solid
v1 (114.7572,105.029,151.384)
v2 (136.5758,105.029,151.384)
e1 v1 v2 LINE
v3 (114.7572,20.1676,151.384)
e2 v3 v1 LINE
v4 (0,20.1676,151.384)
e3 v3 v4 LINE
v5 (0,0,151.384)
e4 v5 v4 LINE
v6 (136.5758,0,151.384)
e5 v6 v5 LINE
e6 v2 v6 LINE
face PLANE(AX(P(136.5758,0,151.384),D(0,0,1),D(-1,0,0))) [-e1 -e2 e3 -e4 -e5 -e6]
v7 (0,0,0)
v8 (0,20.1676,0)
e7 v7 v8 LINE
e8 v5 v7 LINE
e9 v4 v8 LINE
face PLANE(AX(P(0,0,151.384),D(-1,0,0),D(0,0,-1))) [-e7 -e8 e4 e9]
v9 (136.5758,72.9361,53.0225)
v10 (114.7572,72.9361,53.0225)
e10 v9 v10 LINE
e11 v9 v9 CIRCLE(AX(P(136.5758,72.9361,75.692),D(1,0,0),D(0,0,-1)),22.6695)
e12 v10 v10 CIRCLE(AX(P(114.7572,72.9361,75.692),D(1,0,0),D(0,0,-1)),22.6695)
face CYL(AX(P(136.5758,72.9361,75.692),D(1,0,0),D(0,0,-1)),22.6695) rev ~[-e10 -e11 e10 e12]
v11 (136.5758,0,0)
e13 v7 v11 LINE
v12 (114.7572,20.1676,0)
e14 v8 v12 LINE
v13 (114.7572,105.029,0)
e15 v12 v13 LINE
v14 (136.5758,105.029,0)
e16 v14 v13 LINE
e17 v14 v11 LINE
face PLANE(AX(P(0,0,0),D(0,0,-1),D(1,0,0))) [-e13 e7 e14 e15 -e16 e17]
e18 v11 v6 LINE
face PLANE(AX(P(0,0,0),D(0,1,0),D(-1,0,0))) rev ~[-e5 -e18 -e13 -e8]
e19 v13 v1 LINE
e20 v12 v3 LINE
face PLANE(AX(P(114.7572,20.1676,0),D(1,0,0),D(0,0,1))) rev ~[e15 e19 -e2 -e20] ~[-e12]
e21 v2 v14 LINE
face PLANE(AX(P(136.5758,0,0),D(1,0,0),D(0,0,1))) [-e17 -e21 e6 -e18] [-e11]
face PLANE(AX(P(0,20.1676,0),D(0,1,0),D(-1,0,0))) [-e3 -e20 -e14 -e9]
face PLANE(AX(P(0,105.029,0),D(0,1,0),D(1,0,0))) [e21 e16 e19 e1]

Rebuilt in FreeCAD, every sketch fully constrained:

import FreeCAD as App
import Part
import Sketcher
from FreeCAD import Vector
Q = App.Units.Quantity

doc = App.newDocument("Part")
body = doc.addObject("PartDesign::Body", "Body")

# Sketch on XZ plane
sketch1 = doc.addObject("Sketcher::SketchObject", "Sketch")
body.addObject(sketch1)
sketch1.AttachmentSupport = (doc.XZ_Plane, [""])
sketch1.MapMode = "FlatFace"
sketch1.addGeometry(Part.LineSegment(Vector(137, 0, 0), Vector(0, 0, 0)), False)
sketch1.addGeometry(Part.LineSegment(Vector(0, 0, 0), Vector(0, 151, 0)), False)
sketch1.addGeometry(Part.LineSegment(Vector(0, 151, 0), Vector(137, 151, 0)), False)
sketch1.addGeometry(Part.LineSegment(Vector(137, 151, 0), Vector(137, 0, 0)), False)
sketch1.addConstraint(Sketcher.Constraint("Coincident", 0, 2, 1, 1))
sketch1.addConstraint(Sketcher.Constraint("Coincident", 1, 2, 2, 1))
sketch1.addConstraint(Sketcher.Constraint("Coincident", 2, 2, 3, 1))
sketch1.addConstraint(Sketcher.Constraint("Coincident", 3, 2, 0, 1))
sketch1.addConstraint(Sketcher.Constraint("Horizontal", 0))
sketch1.addConstraint(Sketcher.Constraint("Vertical", 1))
sketch1.addConstraint(Sketcher.Constraint("Horizontal", 2))
sketch1.addConstraint(Sketcher.Constraint("Vertical", 3))
sketch1.addConstraint(Sketcher.Constraint("Coincident", 0, 2, -1, 1))
sketch1.addConstraint(Sketcher.Constraint("DistanceY", 1, 1, 1, 2, Q("5.96 in")))
sketch1.addConstraint(Sketcher.Constraint("DistanceX", 0, 2, 0, 1, Q("5.377 in")))
pad1 = doc.addObject("PartDesign::Pad", "Pad")
body.addObject(pad1)
pad1.Profile = sketch1
pad1.Length = Q("0.794 in")
pad1.Reversed = True

# Sketch on XZ plane
sketch2 = doc.addObject("Sketcher::SketchObject", "Sketch001")
body.addObject(sketch2)
sketch2.AttachmentSupport = (doc.XZ_Plane, [""])
sketch2.MapMode = "FlatFace"
sketch2.AttachmentOffset = App.Placement(Vector(0, 0, -0.794 * 25.4), App.Rotation())
sketch2.addGeometry(Part.LineSegment(Vector(115, 0, 0), Vector(115, 151, 0)), False)
sketch2.addGeometry(Part.LineSegment(Vector(115, 151, 0), Vector(137, 151, 0)), False)
sketch2.addGeometry(Part.LineSegment(Vector(137, 151, 0), Vector(137, 0, 0)), False)
sketch2.addGeometry(Part.LineSegment(Vector(137, 0, 0), Vector(115, 0, 0)), False)
sketch2.addConstraint(Sketcher.Constraint("Coincident", 0, 2, 1, 1))
sketch2.addConstraint(Sketcher.Constraint("Coincident", 1, 2, 2, 1))
sketch2.addConstraint(Sketcher.Constraint("Coincident", 2, 2, 3, 1))
sketch2.addConstraint(Sketcher.Constraint("Coincident", 3, 2, 0, 1))
sketch2.addConstraint(Sketcher.Constraint("Vertical", 0))
sketch2.addConstraint(Sketcher.Constraint("Horizontal", 1))
sketch2.addConstraint(Sketcher.Constraint("Vertical", 2))
sketch2.addConstraint(Sketcher.Constraint("Horizontal", 3))
sketch2.addConstraint(Sketcher.Constraint("PointOnObject", 2, 2, -1))
sketch2.addConstraint(Sketcher.Constraint("DistanceX", 1, 1, 1, 2, Q("0.859 in")))
sketch2.addConstraint(Sketcher.Constraint("DistanceY", 0, 1, 0, 2, Q("5.96 in")))
sketch2.addConstraint(Sketcher.Constraint("DistanceX", -1, 1, 0, 2, Q("4.518 in")))
pad2 = doc.addObject("PartDesign::Pad", "Pad001")
body.addObject(pad2)
pad2.Profile = sketch2
pad2.Length = Q("3.341 in")
pad2.Reversed = True

# Sketch on YZ plane
sketch3 = doc.addObject("Sketcher::SketchObject", "Sketch002")
body.addObject(sketch3)
sketch3.AttachmentSupport = (doc.YZ_Plane, [""])
sketch3.MapMode = "FlatFace"
sketch3.AttachmentOffset = App.Placement(Vector(0, 0, 5.377 * 25.4), App.Rotation())
sketch3.addGeometry(Part.Circle(Vector(73, 76, 0), Vector(0, 0, 1), 23), False)
sketch3.addConstraint(Sketcher.Constraint("Diameter", 0, Q("1.785 in")))
sketch3.addConstraint(Sketcher.Constraint("DistanceY", -1, 1, 0, 3, Q("2.98 in")))
sketch3.addConstraint(Sketcher.Constraint("DistanceX", -1, 1, 0, 3, Q("2.8715 in")))
pocket1 = doc.addObject("PartDesign::Pocket", "Pocket")
body.addObject(pocket1)
pocket1.Profile = sketch3
pocket1.Length = Q("3.341 in")

doc.recompute()
